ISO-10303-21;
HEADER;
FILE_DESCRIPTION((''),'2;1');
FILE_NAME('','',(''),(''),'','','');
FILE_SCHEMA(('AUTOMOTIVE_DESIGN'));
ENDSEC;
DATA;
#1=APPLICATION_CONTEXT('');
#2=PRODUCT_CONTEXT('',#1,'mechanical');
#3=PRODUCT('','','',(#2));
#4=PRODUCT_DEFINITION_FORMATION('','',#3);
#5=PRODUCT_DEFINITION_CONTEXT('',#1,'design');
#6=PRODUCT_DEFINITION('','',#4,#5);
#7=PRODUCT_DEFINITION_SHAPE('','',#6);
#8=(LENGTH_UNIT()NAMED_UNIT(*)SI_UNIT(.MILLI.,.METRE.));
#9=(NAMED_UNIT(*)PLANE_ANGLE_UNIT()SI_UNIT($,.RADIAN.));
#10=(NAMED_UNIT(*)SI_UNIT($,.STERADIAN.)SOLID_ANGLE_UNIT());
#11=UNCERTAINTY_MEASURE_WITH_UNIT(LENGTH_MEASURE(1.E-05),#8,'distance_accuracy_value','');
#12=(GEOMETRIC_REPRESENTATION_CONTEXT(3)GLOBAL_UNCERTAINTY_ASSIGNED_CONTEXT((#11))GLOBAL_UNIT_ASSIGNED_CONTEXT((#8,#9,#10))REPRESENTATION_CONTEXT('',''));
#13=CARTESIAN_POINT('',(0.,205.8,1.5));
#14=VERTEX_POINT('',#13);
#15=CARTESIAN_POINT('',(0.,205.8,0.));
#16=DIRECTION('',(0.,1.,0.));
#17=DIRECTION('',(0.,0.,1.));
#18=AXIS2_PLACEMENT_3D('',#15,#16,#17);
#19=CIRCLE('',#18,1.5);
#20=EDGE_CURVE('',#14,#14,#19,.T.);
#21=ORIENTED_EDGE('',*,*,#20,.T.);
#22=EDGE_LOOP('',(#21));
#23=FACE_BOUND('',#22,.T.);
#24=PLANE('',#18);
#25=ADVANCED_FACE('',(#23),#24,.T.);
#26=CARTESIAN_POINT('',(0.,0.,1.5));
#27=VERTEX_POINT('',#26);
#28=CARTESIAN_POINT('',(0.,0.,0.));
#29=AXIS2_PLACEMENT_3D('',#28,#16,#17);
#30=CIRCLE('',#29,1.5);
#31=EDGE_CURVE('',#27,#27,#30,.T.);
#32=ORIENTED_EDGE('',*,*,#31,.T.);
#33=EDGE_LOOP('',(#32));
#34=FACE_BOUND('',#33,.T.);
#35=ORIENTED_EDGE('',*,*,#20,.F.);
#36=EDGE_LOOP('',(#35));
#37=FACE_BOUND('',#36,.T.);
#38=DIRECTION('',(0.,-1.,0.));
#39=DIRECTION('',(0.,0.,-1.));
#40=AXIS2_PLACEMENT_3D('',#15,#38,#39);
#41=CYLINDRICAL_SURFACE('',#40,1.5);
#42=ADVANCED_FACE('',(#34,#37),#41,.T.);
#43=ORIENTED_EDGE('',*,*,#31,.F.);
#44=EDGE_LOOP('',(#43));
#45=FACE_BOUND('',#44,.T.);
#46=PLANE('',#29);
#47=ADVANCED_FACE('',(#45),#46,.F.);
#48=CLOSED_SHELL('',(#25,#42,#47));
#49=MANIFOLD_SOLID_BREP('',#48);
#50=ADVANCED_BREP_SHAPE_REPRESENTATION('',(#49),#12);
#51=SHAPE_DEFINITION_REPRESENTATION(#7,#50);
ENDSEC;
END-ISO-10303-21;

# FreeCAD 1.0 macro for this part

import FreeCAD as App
import Part
import Sketcher

V = App.Vector

doc = App.newDocument("Part")
body = doc.addObject("PartDesign::Body", "Body")

# Sketch on XZ plane
sketch1 = body.newObject("Sketcher::SketchObject", "Sketch")
sketch1.AttachmentSupport = (doc.getObject("XZ_Plane"), [""])
sketch1.MapMode = "FlatFace"
sketch1.addGeometry(Part.Circle(V(0, 0, 0), V(0, 0, 1), 1.5), False)
sketch1.addConstraint(Sketcher.Constraint("Coincident", 0, 3, -1, 1))
sketch1.addConstraint(Sketcher.Constraint("Diameter", 0, 3.0))
pad1 = body.newObject("PartDesign::Pad", "Pad")
pad1.Profile = sketch1
pad1.Length = 205.8
pad1.Reversed = True

doc.recompute()
